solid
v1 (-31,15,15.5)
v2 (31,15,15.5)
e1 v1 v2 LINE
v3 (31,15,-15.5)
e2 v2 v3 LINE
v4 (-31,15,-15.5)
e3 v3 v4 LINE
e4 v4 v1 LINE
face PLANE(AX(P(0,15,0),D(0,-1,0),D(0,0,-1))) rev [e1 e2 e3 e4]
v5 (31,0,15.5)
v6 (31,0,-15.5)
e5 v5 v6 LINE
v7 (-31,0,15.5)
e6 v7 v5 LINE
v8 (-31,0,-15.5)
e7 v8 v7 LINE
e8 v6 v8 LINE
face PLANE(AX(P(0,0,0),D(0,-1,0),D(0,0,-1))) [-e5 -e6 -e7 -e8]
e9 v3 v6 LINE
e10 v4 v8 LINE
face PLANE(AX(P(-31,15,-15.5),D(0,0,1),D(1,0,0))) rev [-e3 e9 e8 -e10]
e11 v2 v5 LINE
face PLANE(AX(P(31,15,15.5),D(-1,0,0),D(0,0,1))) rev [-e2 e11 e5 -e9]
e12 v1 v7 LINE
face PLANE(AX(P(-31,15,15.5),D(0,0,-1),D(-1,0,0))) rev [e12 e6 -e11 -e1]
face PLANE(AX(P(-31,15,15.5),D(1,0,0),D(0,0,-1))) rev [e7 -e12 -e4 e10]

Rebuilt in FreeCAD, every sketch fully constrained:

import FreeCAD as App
import Part
import Sketcher
from FreeCAD import Vector

doc = App.newDocument("Part")
body = doc.addObject("PartDesign::Body", "Body")

# Sketch on XZ plane
sketch1 = body.newObject("Sketcher::SketchObject", "Sketch")
sketch1.AttachmentSupport = (doc.getObject("XZ_Plane"), [""])
sketch1.MapMode = "FlatFace"
sketch1.addGeometry([
    Part.LineSegment(Vector(-31, -16, 0), Vector(-31, 16, 0)),
    Part.LineSegment(Vector(-31, 16, 0), Vector(31, 16, 0)),
    Part.LineSegment(Vector(31, 16, 0), Vector(31, -16, 0)),
    Part.LineSegment(Vector(31, -16, 0), Vector(-31, -16, 0)),
], False)
sketch1.addConstraint([
    Sketcher.Constraint("Coincident", 0, 2, 1, 1),
    Sketcher.Constraint("Coincident", 1, 2, 2, 1),
    Sketcher.Constraint("Coincident", 2, 2, 3, 1),
    Sketcher.Constraint("Coincident", 3, 2, 0, 1),
    Sketcher.Constraint("Vertical", 0),
    Sketcher.Constraint("Horizontal", 1),
    Sketcher.Constraint("Vertical", 2),
    Sketcher.Constraint("Horizontal", 3),
    Sketcher.Constraint("Symmetric", 0, 2, 2, 2, -1, 1),
    Sketcher.Constraint("DistanceX", 1, 1, 1, 2, 62.0),
    Sketcher.Constraint("DistanceY", 0, 1, 0, 2, 31.0),
])
pad1 = body.newObject("PartDesign::Pad", "Pad")
pad1.Profile = sketch1
pad1.Length = 15
pad1.Reversed = True

doc.recompute()
